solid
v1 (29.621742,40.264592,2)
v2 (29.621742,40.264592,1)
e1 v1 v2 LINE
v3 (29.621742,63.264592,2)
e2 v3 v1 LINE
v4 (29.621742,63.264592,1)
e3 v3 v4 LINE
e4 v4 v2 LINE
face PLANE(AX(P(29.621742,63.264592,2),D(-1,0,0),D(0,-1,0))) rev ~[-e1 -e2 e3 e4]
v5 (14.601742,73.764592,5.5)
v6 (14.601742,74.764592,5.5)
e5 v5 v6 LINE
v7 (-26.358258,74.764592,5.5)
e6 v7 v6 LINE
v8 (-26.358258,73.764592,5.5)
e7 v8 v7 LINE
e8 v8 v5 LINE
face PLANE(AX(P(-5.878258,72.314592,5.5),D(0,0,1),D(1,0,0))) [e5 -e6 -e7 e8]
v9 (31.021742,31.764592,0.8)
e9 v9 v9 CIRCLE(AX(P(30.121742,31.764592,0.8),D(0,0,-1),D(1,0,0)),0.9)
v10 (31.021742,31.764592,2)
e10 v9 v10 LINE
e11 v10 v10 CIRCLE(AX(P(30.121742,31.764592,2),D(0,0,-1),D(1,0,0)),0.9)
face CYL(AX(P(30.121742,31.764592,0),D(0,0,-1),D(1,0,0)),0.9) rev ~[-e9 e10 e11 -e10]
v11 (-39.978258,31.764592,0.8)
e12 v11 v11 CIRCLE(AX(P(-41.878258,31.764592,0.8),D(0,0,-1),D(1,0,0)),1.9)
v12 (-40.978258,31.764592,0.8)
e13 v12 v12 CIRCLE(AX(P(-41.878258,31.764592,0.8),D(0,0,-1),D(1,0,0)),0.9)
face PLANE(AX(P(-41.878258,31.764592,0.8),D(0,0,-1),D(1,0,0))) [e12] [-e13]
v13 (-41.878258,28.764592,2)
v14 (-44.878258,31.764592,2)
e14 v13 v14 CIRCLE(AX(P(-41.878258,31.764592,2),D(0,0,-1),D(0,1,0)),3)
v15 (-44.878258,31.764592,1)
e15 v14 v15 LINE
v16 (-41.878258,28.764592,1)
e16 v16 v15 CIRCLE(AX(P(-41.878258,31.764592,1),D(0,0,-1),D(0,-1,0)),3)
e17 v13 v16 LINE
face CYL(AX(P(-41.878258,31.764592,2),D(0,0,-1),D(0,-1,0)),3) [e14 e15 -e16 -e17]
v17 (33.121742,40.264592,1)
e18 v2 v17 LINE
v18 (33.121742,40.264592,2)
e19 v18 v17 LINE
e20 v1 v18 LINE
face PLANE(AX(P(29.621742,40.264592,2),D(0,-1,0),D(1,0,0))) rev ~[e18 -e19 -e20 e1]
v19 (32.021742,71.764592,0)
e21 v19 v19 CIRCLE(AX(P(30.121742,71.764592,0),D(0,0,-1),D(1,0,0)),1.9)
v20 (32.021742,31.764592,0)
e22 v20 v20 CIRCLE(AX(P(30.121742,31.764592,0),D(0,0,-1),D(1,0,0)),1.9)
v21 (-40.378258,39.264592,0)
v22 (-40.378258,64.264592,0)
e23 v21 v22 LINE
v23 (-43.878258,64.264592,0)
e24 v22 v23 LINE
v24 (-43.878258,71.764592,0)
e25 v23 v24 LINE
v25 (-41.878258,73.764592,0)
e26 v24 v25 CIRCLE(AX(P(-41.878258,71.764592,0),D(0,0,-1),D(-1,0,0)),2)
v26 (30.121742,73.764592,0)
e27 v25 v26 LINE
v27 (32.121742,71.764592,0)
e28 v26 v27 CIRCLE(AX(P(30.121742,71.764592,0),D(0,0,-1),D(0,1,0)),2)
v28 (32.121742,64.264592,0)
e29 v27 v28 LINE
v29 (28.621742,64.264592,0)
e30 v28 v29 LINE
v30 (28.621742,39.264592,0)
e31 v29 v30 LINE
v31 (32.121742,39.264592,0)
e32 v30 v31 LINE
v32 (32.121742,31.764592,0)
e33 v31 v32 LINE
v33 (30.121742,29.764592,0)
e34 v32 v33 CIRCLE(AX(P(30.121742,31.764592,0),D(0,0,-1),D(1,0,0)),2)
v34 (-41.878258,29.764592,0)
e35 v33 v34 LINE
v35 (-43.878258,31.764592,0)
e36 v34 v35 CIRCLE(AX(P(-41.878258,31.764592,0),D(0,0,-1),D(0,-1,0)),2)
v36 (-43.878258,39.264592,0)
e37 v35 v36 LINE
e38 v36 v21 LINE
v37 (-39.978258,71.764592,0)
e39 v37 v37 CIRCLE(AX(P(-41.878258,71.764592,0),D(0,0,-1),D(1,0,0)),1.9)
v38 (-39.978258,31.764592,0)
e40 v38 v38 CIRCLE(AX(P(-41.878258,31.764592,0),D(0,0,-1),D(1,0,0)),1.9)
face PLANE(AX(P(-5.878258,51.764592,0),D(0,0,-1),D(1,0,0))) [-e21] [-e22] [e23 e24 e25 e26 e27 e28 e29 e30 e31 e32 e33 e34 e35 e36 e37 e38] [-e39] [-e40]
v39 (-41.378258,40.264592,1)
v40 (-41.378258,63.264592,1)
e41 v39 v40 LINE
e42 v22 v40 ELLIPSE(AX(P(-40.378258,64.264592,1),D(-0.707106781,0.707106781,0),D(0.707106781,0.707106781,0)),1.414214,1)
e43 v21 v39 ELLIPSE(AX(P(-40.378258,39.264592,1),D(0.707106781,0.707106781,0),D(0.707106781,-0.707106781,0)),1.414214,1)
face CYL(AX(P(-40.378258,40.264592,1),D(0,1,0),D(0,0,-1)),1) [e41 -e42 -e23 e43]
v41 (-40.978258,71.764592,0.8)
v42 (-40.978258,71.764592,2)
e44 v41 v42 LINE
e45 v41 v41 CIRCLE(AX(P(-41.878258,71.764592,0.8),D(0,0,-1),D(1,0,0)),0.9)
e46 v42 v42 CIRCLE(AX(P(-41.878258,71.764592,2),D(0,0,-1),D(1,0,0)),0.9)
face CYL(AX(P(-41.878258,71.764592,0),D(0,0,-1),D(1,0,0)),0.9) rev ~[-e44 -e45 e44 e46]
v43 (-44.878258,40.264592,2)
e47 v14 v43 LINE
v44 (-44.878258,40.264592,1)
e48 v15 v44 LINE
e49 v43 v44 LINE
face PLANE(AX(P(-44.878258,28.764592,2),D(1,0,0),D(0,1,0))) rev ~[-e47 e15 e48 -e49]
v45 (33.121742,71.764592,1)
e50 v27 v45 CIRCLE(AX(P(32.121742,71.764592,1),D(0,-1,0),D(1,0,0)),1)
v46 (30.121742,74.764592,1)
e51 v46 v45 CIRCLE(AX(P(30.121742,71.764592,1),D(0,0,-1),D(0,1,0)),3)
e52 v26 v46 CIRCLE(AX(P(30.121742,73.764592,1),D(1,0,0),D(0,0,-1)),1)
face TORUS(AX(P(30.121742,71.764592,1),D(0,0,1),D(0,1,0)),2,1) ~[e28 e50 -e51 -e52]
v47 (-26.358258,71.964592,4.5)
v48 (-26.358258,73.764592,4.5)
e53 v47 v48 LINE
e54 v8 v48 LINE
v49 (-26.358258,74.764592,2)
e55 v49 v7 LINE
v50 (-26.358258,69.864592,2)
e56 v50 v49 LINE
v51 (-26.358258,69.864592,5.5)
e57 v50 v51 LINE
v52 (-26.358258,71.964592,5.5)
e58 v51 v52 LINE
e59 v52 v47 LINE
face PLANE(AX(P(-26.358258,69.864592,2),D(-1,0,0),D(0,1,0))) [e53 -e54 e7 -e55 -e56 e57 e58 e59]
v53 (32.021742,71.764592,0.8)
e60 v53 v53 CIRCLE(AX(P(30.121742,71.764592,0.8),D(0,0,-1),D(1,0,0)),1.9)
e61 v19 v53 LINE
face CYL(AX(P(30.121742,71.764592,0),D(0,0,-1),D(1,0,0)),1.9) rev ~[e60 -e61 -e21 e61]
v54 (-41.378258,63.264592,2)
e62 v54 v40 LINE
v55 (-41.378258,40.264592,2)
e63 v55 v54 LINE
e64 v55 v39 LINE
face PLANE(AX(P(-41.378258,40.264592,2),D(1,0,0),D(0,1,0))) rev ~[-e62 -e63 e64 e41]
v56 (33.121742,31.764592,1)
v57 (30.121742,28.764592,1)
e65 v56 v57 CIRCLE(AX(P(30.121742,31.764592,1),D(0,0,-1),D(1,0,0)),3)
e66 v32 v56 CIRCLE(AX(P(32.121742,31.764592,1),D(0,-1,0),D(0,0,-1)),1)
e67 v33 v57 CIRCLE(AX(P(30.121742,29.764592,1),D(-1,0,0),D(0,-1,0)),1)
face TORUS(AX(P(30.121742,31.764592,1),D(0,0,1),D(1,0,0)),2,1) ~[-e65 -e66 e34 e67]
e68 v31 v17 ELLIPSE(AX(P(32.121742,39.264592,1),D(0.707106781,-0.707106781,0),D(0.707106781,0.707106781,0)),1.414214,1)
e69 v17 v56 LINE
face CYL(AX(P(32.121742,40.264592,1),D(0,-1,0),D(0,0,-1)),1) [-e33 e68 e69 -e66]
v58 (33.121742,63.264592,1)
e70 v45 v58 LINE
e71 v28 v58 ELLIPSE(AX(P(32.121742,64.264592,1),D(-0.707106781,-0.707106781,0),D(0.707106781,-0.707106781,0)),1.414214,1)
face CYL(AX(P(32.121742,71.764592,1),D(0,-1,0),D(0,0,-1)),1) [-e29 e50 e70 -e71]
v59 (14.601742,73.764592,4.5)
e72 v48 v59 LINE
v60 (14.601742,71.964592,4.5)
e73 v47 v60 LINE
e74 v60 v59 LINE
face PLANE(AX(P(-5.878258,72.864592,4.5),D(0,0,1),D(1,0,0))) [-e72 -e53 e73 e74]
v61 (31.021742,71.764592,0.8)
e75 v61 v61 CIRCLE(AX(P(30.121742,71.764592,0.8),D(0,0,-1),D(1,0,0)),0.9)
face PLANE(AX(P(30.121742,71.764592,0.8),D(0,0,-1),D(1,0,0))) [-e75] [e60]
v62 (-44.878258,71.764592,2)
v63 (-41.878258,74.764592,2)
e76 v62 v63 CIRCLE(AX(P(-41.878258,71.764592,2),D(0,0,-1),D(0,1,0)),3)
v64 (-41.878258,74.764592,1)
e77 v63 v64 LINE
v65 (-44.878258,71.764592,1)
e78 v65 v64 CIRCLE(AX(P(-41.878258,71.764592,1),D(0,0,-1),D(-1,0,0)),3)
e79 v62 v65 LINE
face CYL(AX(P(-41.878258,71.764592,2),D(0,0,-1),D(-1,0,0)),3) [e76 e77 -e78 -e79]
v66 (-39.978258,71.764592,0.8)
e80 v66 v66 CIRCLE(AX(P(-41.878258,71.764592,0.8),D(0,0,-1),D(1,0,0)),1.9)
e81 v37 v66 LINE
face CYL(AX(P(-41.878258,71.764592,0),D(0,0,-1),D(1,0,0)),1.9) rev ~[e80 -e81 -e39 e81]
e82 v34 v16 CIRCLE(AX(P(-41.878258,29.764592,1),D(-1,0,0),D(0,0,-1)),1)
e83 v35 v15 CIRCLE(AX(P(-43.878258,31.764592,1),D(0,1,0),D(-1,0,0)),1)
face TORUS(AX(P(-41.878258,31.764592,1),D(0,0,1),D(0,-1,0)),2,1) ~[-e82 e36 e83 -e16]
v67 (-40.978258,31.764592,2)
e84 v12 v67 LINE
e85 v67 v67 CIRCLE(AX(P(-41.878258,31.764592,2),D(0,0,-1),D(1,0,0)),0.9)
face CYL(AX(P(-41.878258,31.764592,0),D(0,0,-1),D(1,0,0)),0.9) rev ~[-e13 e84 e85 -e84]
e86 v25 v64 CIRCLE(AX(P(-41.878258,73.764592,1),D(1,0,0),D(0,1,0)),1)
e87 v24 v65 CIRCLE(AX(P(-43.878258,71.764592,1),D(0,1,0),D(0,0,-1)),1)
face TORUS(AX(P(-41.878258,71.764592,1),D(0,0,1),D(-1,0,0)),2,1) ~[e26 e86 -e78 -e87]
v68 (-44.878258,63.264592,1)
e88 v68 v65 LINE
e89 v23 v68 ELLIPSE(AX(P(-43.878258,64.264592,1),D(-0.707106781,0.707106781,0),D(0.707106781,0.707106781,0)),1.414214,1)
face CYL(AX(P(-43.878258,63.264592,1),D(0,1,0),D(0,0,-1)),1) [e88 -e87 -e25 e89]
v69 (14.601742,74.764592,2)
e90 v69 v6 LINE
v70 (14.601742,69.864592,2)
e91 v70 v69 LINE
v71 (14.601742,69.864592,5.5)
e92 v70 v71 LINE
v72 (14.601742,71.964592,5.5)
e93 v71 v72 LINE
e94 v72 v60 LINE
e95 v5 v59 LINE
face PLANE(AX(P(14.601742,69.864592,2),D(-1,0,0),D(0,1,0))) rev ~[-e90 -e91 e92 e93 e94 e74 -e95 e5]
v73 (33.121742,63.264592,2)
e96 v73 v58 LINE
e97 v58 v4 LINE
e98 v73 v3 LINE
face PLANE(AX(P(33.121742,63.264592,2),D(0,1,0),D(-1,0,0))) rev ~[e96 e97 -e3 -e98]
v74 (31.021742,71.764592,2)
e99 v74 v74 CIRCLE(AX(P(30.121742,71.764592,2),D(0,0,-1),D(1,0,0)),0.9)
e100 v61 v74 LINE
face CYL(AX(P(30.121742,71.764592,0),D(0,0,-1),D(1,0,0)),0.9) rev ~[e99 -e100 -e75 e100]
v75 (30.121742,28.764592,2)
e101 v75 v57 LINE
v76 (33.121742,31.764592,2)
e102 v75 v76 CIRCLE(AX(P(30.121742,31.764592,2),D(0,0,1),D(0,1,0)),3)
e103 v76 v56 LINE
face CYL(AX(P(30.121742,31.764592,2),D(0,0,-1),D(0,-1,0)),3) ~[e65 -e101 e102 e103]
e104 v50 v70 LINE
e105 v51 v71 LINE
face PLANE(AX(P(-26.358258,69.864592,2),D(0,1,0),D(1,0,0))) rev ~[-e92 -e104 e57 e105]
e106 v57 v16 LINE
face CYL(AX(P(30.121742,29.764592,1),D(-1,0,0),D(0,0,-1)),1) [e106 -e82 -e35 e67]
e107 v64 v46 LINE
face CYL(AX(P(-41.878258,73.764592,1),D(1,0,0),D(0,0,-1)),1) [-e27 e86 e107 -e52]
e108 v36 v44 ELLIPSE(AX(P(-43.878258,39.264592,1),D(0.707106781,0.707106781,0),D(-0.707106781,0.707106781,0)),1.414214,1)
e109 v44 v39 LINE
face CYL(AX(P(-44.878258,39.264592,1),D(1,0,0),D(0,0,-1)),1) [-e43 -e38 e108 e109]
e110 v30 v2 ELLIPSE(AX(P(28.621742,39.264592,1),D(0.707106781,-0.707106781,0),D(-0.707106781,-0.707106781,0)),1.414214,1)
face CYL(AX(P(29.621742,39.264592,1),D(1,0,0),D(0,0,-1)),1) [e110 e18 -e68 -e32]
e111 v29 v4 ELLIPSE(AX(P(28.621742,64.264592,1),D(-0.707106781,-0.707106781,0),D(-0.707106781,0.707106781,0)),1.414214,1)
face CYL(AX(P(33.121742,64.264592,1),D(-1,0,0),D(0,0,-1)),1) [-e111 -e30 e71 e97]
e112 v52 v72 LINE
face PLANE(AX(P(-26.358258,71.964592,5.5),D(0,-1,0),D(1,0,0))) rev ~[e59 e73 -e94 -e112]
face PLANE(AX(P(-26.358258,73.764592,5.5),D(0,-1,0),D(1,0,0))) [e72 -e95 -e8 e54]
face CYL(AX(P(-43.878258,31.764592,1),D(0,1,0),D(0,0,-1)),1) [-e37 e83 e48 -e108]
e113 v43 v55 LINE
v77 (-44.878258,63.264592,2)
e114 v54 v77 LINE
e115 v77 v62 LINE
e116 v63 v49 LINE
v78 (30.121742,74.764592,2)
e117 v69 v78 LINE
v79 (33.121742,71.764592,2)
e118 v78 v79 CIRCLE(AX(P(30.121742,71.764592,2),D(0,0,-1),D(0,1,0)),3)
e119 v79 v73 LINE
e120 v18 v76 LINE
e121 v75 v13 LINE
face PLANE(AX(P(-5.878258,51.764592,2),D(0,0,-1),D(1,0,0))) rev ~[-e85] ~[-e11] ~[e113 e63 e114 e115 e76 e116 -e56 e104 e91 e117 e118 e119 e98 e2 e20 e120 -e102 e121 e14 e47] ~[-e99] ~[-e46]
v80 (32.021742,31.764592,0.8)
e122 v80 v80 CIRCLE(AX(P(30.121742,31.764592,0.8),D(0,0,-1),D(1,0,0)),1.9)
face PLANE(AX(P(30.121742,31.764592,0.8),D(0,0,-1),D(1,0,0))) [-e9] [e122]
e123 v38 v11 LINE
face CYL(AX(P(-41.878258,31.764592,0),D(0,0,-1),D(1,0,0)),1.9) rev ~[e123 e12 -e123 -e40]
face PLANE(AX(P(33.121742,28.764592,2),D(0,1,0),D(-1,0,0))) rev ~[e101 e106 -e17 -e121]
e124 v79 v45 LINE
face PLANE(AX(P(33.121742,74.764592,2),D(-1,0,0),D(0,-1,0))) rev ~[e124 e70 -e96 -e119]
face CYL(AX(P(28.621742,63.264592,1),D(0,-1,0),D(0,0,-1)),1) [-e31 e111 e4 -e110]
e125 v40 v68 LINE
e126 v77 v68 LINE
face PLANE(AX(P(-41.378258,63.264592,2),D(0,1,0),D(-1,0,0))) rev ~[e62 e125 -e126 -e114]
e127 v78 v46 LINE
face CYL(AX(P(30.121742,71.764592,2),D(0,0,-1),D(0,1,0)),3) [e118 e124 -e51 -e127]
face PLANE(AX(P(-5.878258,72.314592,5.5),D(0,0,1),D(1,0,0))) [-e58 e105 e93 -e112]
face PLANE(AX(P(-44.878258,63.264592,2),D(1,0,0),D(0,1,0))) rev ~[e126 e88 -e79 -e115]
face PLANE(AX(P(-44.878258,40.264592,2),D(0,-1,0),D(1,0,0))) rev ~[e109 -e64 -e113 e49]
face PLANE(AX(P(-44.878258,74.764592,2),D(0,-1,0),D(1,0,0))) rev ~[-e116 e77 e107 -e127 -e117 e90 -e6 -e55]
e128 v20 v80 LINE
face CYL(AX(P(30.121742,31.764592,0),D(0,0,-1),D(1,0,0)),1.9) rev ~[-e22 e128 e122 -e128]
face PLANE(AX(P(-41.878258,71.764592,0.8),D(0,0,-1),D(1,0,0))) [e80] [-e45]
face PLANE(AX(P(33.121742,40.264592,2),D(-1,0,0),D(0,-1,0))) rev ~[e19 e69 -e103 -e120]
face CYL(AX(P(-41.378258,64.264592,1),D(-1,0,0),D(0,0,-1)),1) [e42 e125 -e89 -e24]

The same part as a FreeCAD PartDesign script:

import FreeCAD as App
import Part
import Sketcher

V = App.Vector


def edges_at(feature, points):
    """Names of the edges that pass closest to the given points."""
    edges = feature.Shape.Edges
    near = lambda p: min(range(len(edges)), key=lambda i: edges[i].distToShape(Part.Vertex(*p))[0])
    return sorted({f"Edge{near(p) + 1}" for p in points})


def add_polygon(sketch, points):
    """Adds a closed chain of lines whose ends are joined by coincident constraints."""
    first, n = sketch.GeometryCount, len(points)
    for a, b in zip(points, points[1:] + points[:1]):
        sketch.addGeometry(Part.LineSegment(App.Vector(*a, 0), App.Vector(*b, 0)), False)
    for i in range(n):
        sketch.addConstraint(Sketcher.Constraint("Coincident", first + i, 2, first + (i + 1) % n, 1))

doc = App.newDocument("Part")
body = doc.addObject("PartDesign::Body", "Body")

# Sketch on XY plane
sketch1 = doc.addObject("Sketcher::SketchObject", "Sketch")
body.addObject(sketch1)
sketch1.AttachmentSupport = (doc.XY_Plane, [""])
sketch1.MapMode = "FlatFace"
add_polygon(sketch1, [(33.1, 28.8), (-44.9, 28.8), (-44.9, 17.3), (-41.4, 17.3), (-41.4, -5.7), (-44.9, -5.7), (-44.9, -17.2), (33.1, -17.2), (33.1, -5.7), (29.6, -5.7), (29.6, 17.3), (33.1, 17.3)])  # lines 0-11
sketch1.addConstraint(Sketcher.Constraint("Horizontal", 0))
sketch1.addConstraint(Sketcher.Constraint("Vertical", 1))
sketch1.addConstraint(Sketcher.Constraint("Horizontal", 2))
sketch1.addConstraint(Sketcher.Constraint("Vertical", 3))
sketch1.addConstraint(Sketcher.Constraint("Horizontal", 4))
sketch1.addConstraint(Sketcher.Constraint("Vertical", 5))
sketch1.addConstraint(Sketcher.Constraint("Horizontal", 6))
sketch1.addConstraint(Sketcher.Constraint("Vertical", 7))
sketch1.addConstraint(Sketcher.Constraint("Horizontal", 8))
sketch1.addConstraint(Sketcher.Constraint("Vertical", 9))
sketch1.addConstraint(Sketcher.Constraint("Horizontal", 10))
sketch1.addConstraint(Sketcher.Constraint("Vertical", 11))
sketch1.addConstraint(Sketcher.Constraint("Horizontal", 4, 2, 7, 2))
sketch1.addConstraint(Sketcher.Constraint("Horizontal", 2, 2, 9, 2))
sketch1.addConstraint(Sketcher.Constraint("Vertical", 1, 2, 4, 2))
sketch1.addConstraint(Sketcher.Constraint("Vertical", 7, 2, 10, 2))
sketch1.addConstraint(Sketcher.Constraint("Equal", 4, 8))
sketch1.addConstraint(Sketcher.Constraint("Equal", 1, 5))
sketch1.addConstraint(Sketcher.Constraint("DistanceX", 0, 2, 0, 1, 78.0))
sketch1.addConstraint(Sketcher.Constraint("DistanceY", 3, 2, 3, 1, 23.0))
sketch1.addConstraint(Sketcher.Constraint("DistanceX", 2, 1, 2, 2, 3.5))
sketch1.addConstraint(Sketcher.Constraint("DistanceY", 1, 2, 1, 1, 11.5))
sketch1.addConstraint(Sketcher.Constraint("DistanceX", 0, 2, -1, 1, 44.878258))
sketch1.addConstraint(Sketcher.Constraint("DistanceY", -1, 1, 0, 2, 28.764592))
pad1 = doc.addObject("PartDesign::Pad", "Pad")
body.addObject(pad1)
pad1.Profile = sketch1
pad1.Length = 2
doc.recompute()

fillet = doc.addObject("PartDesign::Fillet", "Fillet")
body.addObject(fillet)
fillet.Base = (pad1, edges_at(pad1, [
    (-44.878, 28.765, 1),
    (33.122, 28.765, 1),
    (33.122, -17.235, 1),
    (-44.878, -17.235, 1),
]))
fillet.Radius = 3

# Sketch on XY plane
sketch2 = doc.addObject("Sketcher::SketchObject", "Sketch001")
body.addObject(sketch2)
sketch2.AttachmentSupport = (doc.XY_Plane, [""])
sketch2.MapMode = "FlatFace"
sketch2.AttachmentOffset = App.Placement(V(0, 0, 2), App.Rotation())
sketch2.addGeometry(Part.Circle(V(-41.9, -14.2, 0), V(0, 0, 1), 0.9), False)
sketch2.addGeometry(Part.Circle(V(30.1, -14.2, 0), V(0, 0, 1), 0.9), False)
sketch2.addGeometry(Part.Circle(V(30.1, 25.8, 0), V(0, 0, 1), 0.9), False)
sketch2.addGeometry(Part.Circle(V(-41.9, 25.8, 0), V(0, 0, 1), 0.9), False)
sketch2.addConstraint(Sketcher.Constraint("Equal", 0, 1))
sketch2.addConstraint(Sketcher.Constraint("Equal", 1, 2))
sketch2.addConstraint(Sketcher.Constraint("Equal", 2, 3))
sketch2.addConstraint(Sketcher.Constraint("Horizontal", 0, 3, 1, 3))
sketch2.addConstraint(Sketcher.Constraint("Horizontal", 2, 3, 3, 3))
sketch2.addConstraint(Sketcher.Constraint("Vertical", 1, 3, 2, 3))
sketch2.addConstraint(Sketcher.Constraint("Vertical", 0, 3, 3, 3))
sketch2.addConstraint(Sketcher.Constraint("Diameter", 0, 1.8))
sketch2.addConstraint(Sketcher.Constraint("DistanceX", 0, 3, 1, 3, 72.0))
sketch2.addConstraint(Sketcher.Constraint("DistanceY", 1, 3, 2, 3, 40.0))
sketch2.addConstraint(Sketcher.Constraint("DistanceX", 0, 3, -1, 1, 41.878258))
sketch2.addConstraint(Sketcher.Constraint("DistanceY", 0, 3, -1, 1, 14.235408))
pocket1 = doc.addObject("PartDesign::Pocket", "Pocket")
body.addObject(pocket1)
pocket1.Profile = sketch2
pocket1.Length = 2.5
doc.recompute()

fillet2 = doc.addObject("PartDesign::Fillet", "Fillet001")
body.addObject(fillet2)
fillet2.Base = (pocket1, edges_at(pocket1, [
    (33.122, -9.985, 2),
    (32.243, -16.357, 2),
    (31.372, -5.735, 2),
    (29.622, 5.765, 2),
    (31.372, 17.265, 2),
    (33.122, 21.515, 2),
    (-43.128, 17.265, 2),
    (-41.378, 5.765, 2),
    (-43.128, -5.735, 2),
]))
fillet2.Radius = 1

# Sketch on XY plane
sketch3 = doc.addObject("Sketcher::SketchObject", "Sketch002")
body.addObject(sketch3)
sketch3.AttachmentSupport = (doc.XY_Plane, [""])
sketch3.MapMode = "FlatFace"
add_polygon(sketch3, [(-26.4, -17.2), (-26.4, -12.3), (14.6, -12.3), (14.6, -17.2)])  # lines 0-3
sketch3.addConstraint(Sketcher.Constraint("Vertical", 0))
sketch3.addConstraint(Sketcher.Constraint("Horizontal", 1))
sketch3.addConstraint(Sketcher.Constraint("Vertical", 2))
sketch3.addConstraint(Sketcher.Constraint("Horizontal", 3))
sketch3.addConstraint(Sketcher.Constraint("DistanceY", 0, 1, 0, 2, 4.9))
sketch3.addConstraint(Sketcher.Constraint("DistanceX", 1, 1, 1, 2, 40.96))
sketch3.addConstraint(Sketcher.Constraint("DistanceX", 0, 2, -1, 1, 26.358258))
sketch3.addConstraint(Sketcher.Constraint("DistanceY", 0, 2, -1, 1, 12.335408))
pad2 = doc.addObject("PartDesign::Pad", "Pad001")
body.addObject(pad2)
pad2.Profile = sketch3
pad2.Length = 3.5
pad2.Reversed = True

# Sketch on XY plane
sketch4 = doc.addObject("Sketcher::SketchObject", "Sketch003")
body.addObject(sketch4)
sketch4.AttachmentSupport = (doc.XY_Plane, [""])
sketch4.MapMode = "FlatFace"
sketch4.AttachmentOffset = App.Placement(V(0, 0, -3.5), App.Rotation())
add_polygon(sketch4, [(-26.4, -16.2), (-26.4, -14.4), (14.6, -14.4), (14.6, -16.2)])  # lines 0-3
sketch4.addConstraint(Sketcher.Constraint("Vertical", 0))
sketch4.addConstraint(Sketcher.Constraint("Horizontal", 1))
sketch4.addConstraint(Sketcher.Constraint("Vertical", 2))
sketch4.addConstraint(Sketcher.Constraint("Horizontal", 3))
sketch4.addConstraint(Sketcher.Constraint("DistanceY", 0, 1, 0, 2, 1.8))
sketch4.addConstraint(Sketcher.Constraint("DistanceX", 1, 1, 1, 2, 40.96))
sketch4.addConstraint(Sketcher.Constraint("DistanceX", 0, 2, -1, 1, 26.358258))
sketch4.addConstraint(Sketcher.Constraint("DistanceY", 0, 2, -1, 1, 14.435408))
pocket2 = doc.addObject("PartDesign::Pocket", "Pocket001")
body.addObject(pocket2)
pocket2.Profile = sketch4
pocket2.Length = 1
pocket2.Reversed = True
body2 = doc.addObject("PartDesign::Body", "Body001")
doc.recompute()

body.Placement = App.Placement(V(0, 57.529184, 0), App.Rotation(V(1, 0, 0), 180))
boolean = doc.addObject("PartDesign::Boolean", "Boolean")
body2.addObject(boolean)
boolean.Type = "Fuse"
boolean.addObjects([body])
body3 = doc.addObject("PartDesign::Body", "Body002")
doc.recompute()

body2.Placement = App.Placement(V(0, 0, 2), App.Rotation(V(0, 0, 1), 0))
boolean2 = doc.addObject("PartDesign::Boolean", "Boolean001")
body3.addObject(boolean2)
boolean2.Type = "Fuse"
boolean2.addObjects([body2])

# Sketch on XY plane
sketch5 = doc.addObject("Sketcher::SketchObject", "Sketch004")
body3.addObject(sketch5)
sketch5.AttachmentSupport = (doc.getObject("XY_Plane002"), [""])
sketch5.MapMode = "FlatFace"
sketch5.addGeometry(Part.Circle(V(-41.9, 31.8, 0), V(0, 0, 1), 1.9), False)
sketch5.addGeometry(Part.Circle(V(-41.9, 71.8, 0), V(0, 0, 1), 1.9), False)
sketch5.addGeometry(Part.Circle(V(30.1, 71.8, 0), V(0, 0, 1), 1.9), False)
sketch5.addGeometry(Part.Circle(V(30.1, 31.8, 0), V(0, 0, 1), 1.9), False)
sketch5.addConstraint(Sketcher.Constraint("Equal", 0, 1))
sketch5.addConstraint(Sketcher.Constraint("Equal", 1, 2))
sketch5.addConstraint(Sketcher.Constraint("Equal", 2, 3))
sketch5.addConstraint(Sketcher.Constraint("Horizontal", 1, 3, 2, 3))
sketch5.addConstraint(Sketcher.Constraint("Horizontal", 0, 3, 3, 3))
sketch5.addConstraint(Sketcher.Constraint("Vertical", 0, 3, 1, 3))
sketch5.addConstraint(Sketcher.Constraint("Vertical", 2, 3, 3, 3))
sketch5.addConstraint(Sketcher.Constraint("Diameter", 0, 3.8))
sketch5.addConstraint(Sketcher.Constraint("DistanceY", 0, 3, 1, 3, 40.0))
sketch5.addConstraint(Sketcher.Constraint("DistanceX", 1, 3, 2, 3, 72.0))
sketch5.addConstraint(Sketcher.Constraint("DistanceX", 0, 3, -1, 1, 41.878258))
sketch5.addConstraint(Sketcher.Constraint("DistanceY", -1, 1, 0, 3, 31.764592))
pocket3 = doc.addObject("PartDesign::Pocket", "Pocket002")
body3.addObject(pocket3)
pocket3.Profile = sketch5
pocket3.Length = 0.8
pocket3.Reversed = True

doc.recompute()
